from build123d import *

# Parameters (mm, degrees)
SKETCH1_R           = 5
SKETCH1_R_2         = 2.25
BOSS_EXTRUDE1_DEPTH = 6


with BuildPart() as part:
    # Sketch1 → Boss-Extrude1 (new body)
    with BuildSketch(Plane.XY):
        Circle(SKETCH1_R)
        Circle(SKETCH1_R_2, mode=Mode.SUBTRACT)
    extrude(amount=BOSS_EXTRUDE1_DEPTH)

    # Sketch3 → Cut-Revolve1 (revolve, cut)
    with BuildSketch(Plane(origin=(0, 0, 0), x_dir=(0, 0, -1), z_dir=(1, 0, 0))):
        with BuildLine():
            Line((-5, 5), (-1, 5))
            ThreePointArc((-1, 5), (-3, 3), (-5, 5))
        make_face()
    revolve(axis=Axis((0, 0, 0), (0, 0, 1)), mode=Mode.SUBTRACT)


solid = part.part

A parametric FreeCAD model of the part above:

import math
import FreeCAD as App
import Part
import Sketcher

V = App.Vector

doc = App.newDocument("Part")
body = doc.addObject("PartDesign::Body", "Body")

# Sketch on XY plane
sketch1 = body.newObject("Sketcher::SketchObject", "Sketch")
sketch1.AttachmentSupport = (doc.getObject("XY_Plane"), [""])
sketch1.MapMode = "FlatFace"
sketch1.addGeometry(Part.Circle(V(0, 0, 0), V(0, 0, 1), 5), False)
sketch1.addGeometry(Part.Circle(V(0, 0, 0), V(0, 0, 1), 2.25), False)
sketch1.addConstraint(Sketcher.Constraint("Coincident", 0, 3, -1, 1))
sketch1.addConstraint(Sketcher.Constraint("Coincident", 1, 3, -1, 1))
sketch1.addConstraint(Sketcher.Constraint("Diameter", 0, 10.0))
sketch1.addConstraint(Sketcher.Constraint("Diameter", 1, 4.5))
pad1 = body.newObject("PartDesign::Pad", "Pad")
pad1.Profile = sketch1
pad1.Length = 6

# Sketch on YZ plane
sketch2 = body.newObject("Sketcher::SketchObject", "Sketch001")
sketch2.AttachmentSupport = (doc.getObject("YZ_Plane"), [""])
sketch2.MapMode = "FlatFace"
sketch2.addGeometry(Part.LineSegment(V(5, 1, 0), V(5, 5, 0)), False)
sketch2.addGeometry(Part.ArcOfCircle(Part.Circle(V(5, 3, 0), V(0, 0, 1), 2), math.radians(90), math.radians(270)), False)
sketch2.addConstraint(Sketcher.Constraint("Coincident", 0, 1, 1, 2))
sketch2.addConstraint(Sketcher.Constraint("Coincident", 1, 1, 0, 2))
sketch2.addConstraint(Sketcher.Constraint("Vertical", 0))
sketch2.addConstraint(Sketcher.Constraint("Vertical", 1, 3, 0, 1))
sketch2.addConstraint(Sketcher.Constraint("Radius", 1, 2.0))
sketch2.addConstraint(Sketcher.Constraint("DistanceX", -1, 1, 1, 3, 5.0))
sketch2.addConstraint(Sketcher.Constraint("DistanceY", -1, 1, 1, 3, 3.0))
groove = body.newObject("PartDesign::Groove", "Groove")
groove.Profile = sketch2
groove.ReferenceAxis = (sketch2, ["V_Axis"])
groove.Angle = 360

doc.recompute()
